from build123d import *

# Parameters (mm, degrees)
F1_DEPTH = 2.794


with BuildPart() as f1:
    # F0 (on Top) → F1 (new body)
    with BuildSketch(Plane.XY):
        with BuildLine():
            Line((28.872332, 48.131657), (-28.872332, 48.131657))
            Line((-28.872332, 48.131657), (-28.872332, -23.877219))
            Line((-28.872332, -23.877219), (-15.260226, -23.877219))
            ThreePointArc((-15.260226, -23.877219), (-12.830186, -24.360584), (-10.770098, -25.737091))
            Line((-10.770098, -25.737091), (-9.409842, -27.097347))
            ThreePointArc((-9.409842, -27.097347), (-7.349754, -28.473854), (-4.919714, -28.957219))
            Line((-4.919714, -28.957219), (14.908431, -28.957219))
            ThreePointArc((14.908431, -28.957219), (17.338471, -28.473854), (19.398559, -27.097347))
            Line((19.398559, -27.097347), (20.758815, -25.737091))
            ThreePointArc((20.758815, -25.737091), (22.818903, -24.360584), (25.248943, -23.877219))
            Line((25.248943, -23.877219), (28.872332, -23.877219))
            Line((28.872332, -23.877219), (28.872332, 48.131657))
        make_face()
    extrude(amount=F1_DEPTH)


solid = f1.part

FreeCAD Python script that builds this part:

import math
import FreeCAD as App
import Part
import Sketcher
Q = App.Units.Quantity

doc = App.newDocument("Part")
body = doc.addObject("PartDesign::Body", "Body")

sketch1 = body.newObject("Sketcher::SketchObject", "Sketch")
sketch1.AttachmentSupport = (doc.getObject("XY_Plane"), [""])
sketch1.MapMode = "FlatFace"
sketch1.addGeometry(Part.LineSegment(App.Vector(28.872332, 48.131657, 0), App.Vector(-28.872332, 48.131657, 0)), False)
sketch1.addGeometry(Part.LineSegment(App.Vector(-28.872332, 48.131657, 0), App.Vector(-28.872332, -23.877219, 0)), False)
sketch1.addGeometry(Part.LineSegment(App.Vector(-28.872332, -23.877219, 0), App.Vector(-15.260226, -23.877219, 0)), False)
sketch1.addGeometry(Part.ArcOfCircle(Part.Circle(App.Vector(-15.260226, -30.227218, 0), App.Vector(0, 0, 1), 6.349999), math.radians(44.999995), math.radians(90.000003)), False)
sketch1.addGeometry(Part.LineSegment(App.Vector(-10.770098, -25.737091, 0), App.Vector(-9.409842, -27.097347, 0)), False)
sketch1.addGeometry(Part.ArcOfCircle(Part.Circle(App.Vector(-4.919714, -22.60722, 0), App.Vector(0, 0, 1), 6.349999), math.radians(-135.000005), math.radians(-89.999997)), False)
sketch1.addGeometry(Part.LineSegment(App.Vector(-4.919714, -28.957219, 0), App.Vector(14.908431, -28.957219, 0)), False)
sketch1.addGeometry(Part.ArcOfCircle(Part.Circle(App.Vector(14.908431, -22.60722, 0), App.Vector(0, 0, 1), 6.349999), math.radians(-90.000003), math.radians(-44.999995)), False)
sketch1.addGeometry(Part.LineSegment(App.Vector(19.398559, -27.097347, 0), App.Vector(20.758815, -25.737091, 0)), False)
sketch1.addGeometry(Part.ArcOfCircle(Part.Circle(App.Vector(25.248943, -30.227218, 0), App.Vector(0, 0, 1), 6.349999), math.radians(89.999997), math.radians(135.000005)), False)
sketch1.addGeometry(Part.LineSegment(App.Vector(25.248943, -23.877219, 0), App.Vector(28.872332, -23.877219, 0)), False)
sketch1.addGeometry(Part.LineSegment(App.Vector(28.872332, -23.877219, 0), App.Vector(28.872332, 48.131657, 0)), False)
sketch1.addConstraint(Sketcher.Constraint("Coincident", 0, 2, 1, 1))
sketch1.addConstraint(Sketcher.Constraint("Coincident", 1, 2, 2, 1))
sketch1.addConstraint(Sketcher.Constraint("Tangent", 2, 2, 3, 2))
sketch1.addConstraint(Sketcher.Constraint("Tangent", 3, 1, 4, 1))
sketch1.addConstraint(Sketcher.Constraint("Tangent", 4, 2, 5, 1))
sketch1.addConstraint(Sketcher.Constraint("Tangent", 5, 2, 6, 1))
sketch1.addConstraint(Sketcher.Constraint("Tangent", 6, 2, 7, 1))
sketch1.addConstraint(Sketcher.Constraint("Tangent", 7, 2, 8, 1))
sketch1.addConstraint(Sketcher.Constraint("Tangent", 8, 2, 9, 2))
sketch1.addConstraint(Sketcher.Constraint("Tangent", 9, 1, 10, 1))
sketch1.addConstraint(Sketcher.Constraint("Coincident", 10, 2, 11, 1))
sketch1.addConstraint(Sketcher.Constraint("Coincident", 11, 2, 0, 1))
sketch1.addConstraint(Sketcher.Constraint("Horizontal", 0))
sketch1.addConstraint(Sketcher.Constraint("Vertical", 1))
sketch1.addConstraint(Sketcher.Constraint("Horizontal", 2))
sketch1.addConstraint(Sketcher.Constraint("Horizontal", 6))
sketch1.addConstraint(Sketcher.Constraint("Horizontal", 10))
sketch1.addConstraint(Sketcher.Constraint("Vertical", 11))
sketch1.addConstraint(Sketcher.Constraint("Equal", 3, 5))
sketch1.addConstraint(Sketcher.Constraint("Equal", 5, 7))
sketch1.addConstraint(Sketcher.Constraint("Equal", 7, 9))
sketch1.addConstraint(Sketcher.Constraint("Symmetric", 1, 2, 10, 2, -2))
sketch1.addConstraint(Sketcher.Constraint("Perpendicular", 4, 8))
sketch1.addConstraint(Sketcher.Constraint("Horizontal", 4, 2, 7, 2))
sketch1.addConstraint(Sketcher.Constraint("Radius", 3, Q("0.25 in")))
sketch1.addConstraint(Sketcher.Constraint("DistanceY", 3, 3, 5, 3, Q("0.2999999 in")))
sketch1.addConstraint(Sketcher.Constraint("DistanceX", 10, 1, 10, 2, 3.623389))
sketch1.addConstraint(Sketcher.Constraint("DistanceX", 3, 1, -1, 1, 10.770098))
sketch1.addConstraint(Sketcher.Constraint("DistanceX", 0, 2, 0, 1, 57.744664))
sketch1.addConstraint(Sketcher.Constraint("DistanceY", 1, 2, 1, 1, 72.008876))
sketch1.addConstraint(Sketcher.Constraint("DistanceY", 5, 3, -1, 1, 22.60722))
pad1 = body.newObject("PartDesign::Pad", "Pad")
pad1.Profile = sketch1
pad1.Length = Q("0.11 in")

doc.recompute()
